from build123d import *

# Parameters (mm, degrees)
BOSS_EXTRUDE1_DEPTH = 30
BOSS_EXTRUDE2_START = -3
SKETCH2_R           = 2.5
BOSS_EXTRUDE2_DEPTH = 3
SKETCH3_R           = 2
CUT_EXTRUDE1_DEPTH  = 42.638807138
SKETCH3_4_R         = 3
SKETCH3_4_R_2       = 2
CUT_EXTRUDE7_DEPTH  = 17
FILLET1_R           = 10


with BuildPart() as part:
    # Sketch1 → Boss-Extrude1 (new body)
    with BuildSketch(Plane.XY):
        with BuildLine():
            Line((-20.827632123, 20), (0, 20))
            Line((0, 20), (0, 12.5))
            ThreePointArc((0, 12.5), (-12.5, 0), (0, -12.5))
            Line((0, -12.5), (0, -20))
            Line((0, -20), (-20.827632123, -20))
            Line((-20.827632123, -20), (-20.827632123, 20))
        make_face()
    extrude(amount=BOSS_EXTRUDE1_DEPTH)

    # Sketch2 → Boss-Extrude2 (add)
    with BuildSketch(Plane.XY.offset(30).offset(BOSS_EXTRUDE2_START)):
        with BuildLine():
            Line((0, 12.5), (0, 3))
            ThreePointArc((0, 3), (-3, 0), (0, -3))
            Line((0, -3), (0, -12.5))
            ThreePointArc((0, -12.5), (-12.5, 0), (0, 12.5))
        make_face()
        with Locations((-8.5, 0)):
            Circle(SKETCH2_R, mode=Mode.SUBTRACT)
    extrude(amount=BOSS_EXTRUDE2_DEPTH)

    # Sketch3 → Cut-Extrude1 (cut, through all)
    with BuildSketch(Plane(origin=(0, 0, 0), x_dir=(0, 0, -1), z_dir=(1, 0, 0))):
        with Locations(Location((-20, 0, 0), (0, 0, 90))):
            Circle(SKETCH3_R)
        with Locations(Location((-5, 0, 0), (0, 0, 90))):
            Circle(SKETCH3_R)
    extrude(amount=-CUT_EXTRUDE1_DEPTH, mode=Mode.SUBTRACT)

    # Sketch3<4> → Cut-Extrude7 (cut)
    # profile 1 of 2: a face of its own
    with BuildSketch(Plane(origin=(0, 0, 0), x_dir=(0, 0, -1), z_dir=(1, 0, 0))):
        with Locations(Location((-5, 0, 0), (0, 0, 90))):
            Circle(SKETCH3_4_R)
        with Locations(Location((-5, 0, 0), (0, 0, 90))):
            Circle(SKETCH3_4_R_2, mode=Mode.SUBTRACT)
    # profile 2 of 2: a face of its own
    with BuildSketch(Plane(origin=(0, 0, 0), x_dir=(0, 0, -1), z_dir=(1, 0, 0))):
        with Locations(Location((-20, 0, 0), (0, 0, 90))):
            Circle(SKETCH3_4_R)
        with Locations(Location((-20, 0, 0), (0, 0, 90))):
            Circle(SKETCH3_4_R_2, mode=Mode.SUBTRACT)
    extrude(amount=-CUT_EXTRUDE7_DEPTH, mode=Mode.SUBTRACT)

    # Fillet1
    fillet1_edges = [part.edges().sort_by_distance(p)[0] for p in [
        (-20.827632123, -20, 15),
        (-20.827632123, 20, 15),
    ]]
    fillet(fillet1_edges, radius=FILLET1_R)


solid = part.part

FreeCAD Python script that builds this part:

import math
import FreeCAD as App
import Part
import Sketcher


def edges_at(feature, points):
    """Names of the edges that pass closest to the given points."""
    edges = feature.Shape.Edges
    near = lambda p: min(range(len(edges)), key=lambda i: edges[i].distToShape(Part.Vertex(*p))[0])
    return sorted({f"Edge{near(p) + 1}" for p in points})

doc = App.newDocument("Part")
body = doc.addObject("PartDesign::Body", "Body")

# Sketch on XY plane
sketch1 = body.newObject("Sketcher::SketchObject", "Sketch")
sketch1.AttachmentSupport = (doc.getObject("XY_Plane"), [""])
sketch1.MapMode = "FlatFace"
sketch1.addGeometry([
    Part.LineSegment(App.Vector(0, 20, 0), App.Vector(-21, 20, 0)),  # 0
    Part.LineSegment(App.Vector(-21, 20, 0), App.Vector(-21, -20, 0)),  # 1
    Part.LineSegment(App.Vector(-21, -20, 0), App.Vector(0, -20, 0)),  # 2
    Part.LineSegment(App.Vector(0, -20, 0), App.Vector(0, -12, 0)),  # 3
    Part.ArcOfCircle(Part.Circle(App.Vector(0, 0, 0), App.Vector(0, 0, 1), 12), math.radians(90), math.radians(270)),  # 4
    Part.LineSegment(App.Vector(0, 12, 0), App.Vector(0, 20, 0)),  # 5
], False)
sketch1.addConstraint([
    Sketcher.Constraint("Coincident", 0, 2, 1, 1),
    Sketcher.Constraint("Coincident", 1, 2, 2, 1),
    Sketcher.Constraint("Coincident", 2, 2, 3, 1),
    Sketcher.Constraint("Coincident", 3, 2, 4, 2),
    Sketcher.Constraint("Coincident", 4, 1, 5, 1),
    Sketcher.Constraint("Coincident", 5, 2, 0, 1),
    Sketcher.Constraint("Horizontal", 0),
    Sketcher.Constraint("Vertical", 1),
    Sketcher.Constraint("Horizontal", 2),
    Sketcher.Constraint("Vertical", 3),
    Sketcher.Constraint("Vertical", 5),
    Sketcher.Constraint("Coincident", 4, 3, -1, 1),
    Sketcher.Constraint("Symmetric", 2, 2, 5, 2, -1, 1),
    Sketcher.Constraint("PointOnObject", 2, 2, -2),
    Sketcher.Constraint("Radius", 4, 12.5),
    Sketcher.Constraint("DistanceY", 1, 2, 1, 1, 40.0),
    Sketcher.Constraint("DistanceX", 0, 2, 0, 1, 20.827632),
])
pad1 = body.newObject("PartDesign::Pad", "Pad")
pad1.Profile = sketch1
pad1.Length = 30

# Sketch on XY plane
sketch2 = body.newObject("Sketcher::SketchObject", "Sketch001")
sketch2.AttachmentSupport = (doc.getObject("XY_Plane"), [""])
sketch2.MapMode = "FlatFace"
sketch2.AttachmentOffset = App.Placement(App.Vector(0, 0, 27), App.Rotation())
sketch2.addGeometry([
    Part.LineSegment(App.Vector(0, 3, 0), App.Vector(0, 12.5, 0)),  # 0
    Part.ArcOfCircle(Part.Circle(App.Vector(0, 0, 0), App.Vector(0, 0, 1), 12.5), math.radians(90), math.radians(270)),  # 1
    Part.LineSegment(App.Vector(0, -12.5, 0), App.Vector(0, -3, 0)),  # 2
    Part.ArcOfCircle(Part.Circle(App.Vector(0, 0, 0), App.Vector(0, 0, 1), 3), math.radians(90), math.radians(270)),  # 3
    Part.Circle(App.Vector(-8.5, 0, 0), App.Vector(0, 0, 1), 2.5),  # 4
], False)
sketch2.addConstraint([
    Sketcher.Constraint("Coincident", 0, 2, 1, 1),
    Sketcher.Constraint("Coincident", 1, 2, 2, 1),
    Sketcher.Constraint("Coincident", 2, 2, 3, 2),
    Sketcher.Constraint("Coincident", 3, 1, 0, 1),
    Sketcher.Constraint("Vertical", 0),
    Sketcher.Constraint("Vertical", 2),
    Sketcher.Constraint("Coincident", 1, 3, -1, 1),
    Sketcher.Constraint("Coincident", 3, 3, -1, 1),
    Sketcher.Constraint("PointOnObject", 4, 3, -1),
    Sketcher.Constraint("PointOnObject", 0, 2, -2),
    Sketcher.Constraint("PointOnObject", 1, 2, -2),
    Sketcher.Constraint("Diameter", 4, 5.0),
    Sketcher.Constraint("Radius", 3, 3.0),
    Sketcher.Constraint("Radius", 1, 12.5),
    Sketcher.Constraint("DistanceX", 4, 3, -1, 1, 8.5),
])
pad2 = body.newObject("PartDesign::Pad", "Pad001")
pad2.Profile = sketch2
pad2.Length = 3

# Sketch on YZ plane
sketch3 = body.newObject("Sketcher::SketchObject", "Sketch002")
sketch3.AttachmentSupport = (doc.getObject("YZ_Plane"), [""])
sketch3.MapMode = "FlatFace"
sketch3.addGeometry([
    Part.Circle(App.Vector(0, 20, 0), App.Vector(0, 0, 1), 2),
    Part.Circle(App.Vector(0, 5, 0), App.Vector(0, 0, 1), 2),
], False)
sketch3.addConstraint([
    Sketcher.Constraint("Equal", 0, 1),
    Sketcher.Constraint("PointOnObject", 0, 3, -2),
    Sketcher.Constraint("PointOnObject", 1, 3, -2),
    Sketcher.Constraint("Diameter", 0, 4.0),
    Sketcher.Constraint("DistanceY", -1, 1, 0, 3, 20.0),
    Sketcher.Constraint("DistanceY", -1, 1, 1, 3, 5.0),
])
pocket1 = body.newObject("PartDesign::Pocket", "Pocket")
pocket1.Profile = sketch3
pocket1.Type = "ThroughAll"

# Sketch on YZ plane
sketch4 = body.newObject("Sketcher::SketchObject", "Sketch003")
sketch4.AttachmentSupport = (doc.getObject("YZ_Plane"), [""])
sketch4.MapMode = "FlatFace"
sketch4.addGeometry([
    Part.Circle(App.Vector(0, 5, 0), App.Vector(0, 0, 1), 3),
    Part.Circle(App.Vector(0, 5, 0), App.Vector(0, 0, 1), 2),
    Part.Circle(App.Vector(0, 20, 0), App.Vector(0, 0, 1), 3),
    Part.Circle(App.Vector(0, 20, 0), App.Vector(0, 0, 1), 2),
], False)
sketch4.addConstraint([
    Sketcher.Constraint("Coincident", 1, 3, 0, 3),
    Sketcher.Constraint("Coincident", 3, 3, 2, 3),
    Sketcher.Constraint("Equal", 0, 2),
    Sketcher.Constraint("Equal", 1, 3),
    Sketcher.Constraint("PointOnObject", 0, 3, -2),
    Sketcher.Constraint("PointOnObject", 2, 3, -2),
    Sketcher.Constraint("Diameter", 0, 6.0),
    Sketcher.Constraint("Diameter", 1, 4.0),
    Sketcher.Constraint("DistanceY", -1, 1, 0, 3, 5.0),
    Sketcher.Constraint("DistanceY", -1, 1, 2, 3, 20.0),
])
pocket2 = body.newObject("PartDesign::Pocket", "Pocket001")
pocket2.Profile = sketch4
pocket2.Length = 17
doc.recompute()

fillet = body.newObject("PartDesign::Fillet", "Fillet")
fillet.Base = (pocket2, edges_at(pocket2, [(-20.828, -20, 15), (-20.828, 20, 15)]))
fillet.Radius = 10

doc.recompute()
